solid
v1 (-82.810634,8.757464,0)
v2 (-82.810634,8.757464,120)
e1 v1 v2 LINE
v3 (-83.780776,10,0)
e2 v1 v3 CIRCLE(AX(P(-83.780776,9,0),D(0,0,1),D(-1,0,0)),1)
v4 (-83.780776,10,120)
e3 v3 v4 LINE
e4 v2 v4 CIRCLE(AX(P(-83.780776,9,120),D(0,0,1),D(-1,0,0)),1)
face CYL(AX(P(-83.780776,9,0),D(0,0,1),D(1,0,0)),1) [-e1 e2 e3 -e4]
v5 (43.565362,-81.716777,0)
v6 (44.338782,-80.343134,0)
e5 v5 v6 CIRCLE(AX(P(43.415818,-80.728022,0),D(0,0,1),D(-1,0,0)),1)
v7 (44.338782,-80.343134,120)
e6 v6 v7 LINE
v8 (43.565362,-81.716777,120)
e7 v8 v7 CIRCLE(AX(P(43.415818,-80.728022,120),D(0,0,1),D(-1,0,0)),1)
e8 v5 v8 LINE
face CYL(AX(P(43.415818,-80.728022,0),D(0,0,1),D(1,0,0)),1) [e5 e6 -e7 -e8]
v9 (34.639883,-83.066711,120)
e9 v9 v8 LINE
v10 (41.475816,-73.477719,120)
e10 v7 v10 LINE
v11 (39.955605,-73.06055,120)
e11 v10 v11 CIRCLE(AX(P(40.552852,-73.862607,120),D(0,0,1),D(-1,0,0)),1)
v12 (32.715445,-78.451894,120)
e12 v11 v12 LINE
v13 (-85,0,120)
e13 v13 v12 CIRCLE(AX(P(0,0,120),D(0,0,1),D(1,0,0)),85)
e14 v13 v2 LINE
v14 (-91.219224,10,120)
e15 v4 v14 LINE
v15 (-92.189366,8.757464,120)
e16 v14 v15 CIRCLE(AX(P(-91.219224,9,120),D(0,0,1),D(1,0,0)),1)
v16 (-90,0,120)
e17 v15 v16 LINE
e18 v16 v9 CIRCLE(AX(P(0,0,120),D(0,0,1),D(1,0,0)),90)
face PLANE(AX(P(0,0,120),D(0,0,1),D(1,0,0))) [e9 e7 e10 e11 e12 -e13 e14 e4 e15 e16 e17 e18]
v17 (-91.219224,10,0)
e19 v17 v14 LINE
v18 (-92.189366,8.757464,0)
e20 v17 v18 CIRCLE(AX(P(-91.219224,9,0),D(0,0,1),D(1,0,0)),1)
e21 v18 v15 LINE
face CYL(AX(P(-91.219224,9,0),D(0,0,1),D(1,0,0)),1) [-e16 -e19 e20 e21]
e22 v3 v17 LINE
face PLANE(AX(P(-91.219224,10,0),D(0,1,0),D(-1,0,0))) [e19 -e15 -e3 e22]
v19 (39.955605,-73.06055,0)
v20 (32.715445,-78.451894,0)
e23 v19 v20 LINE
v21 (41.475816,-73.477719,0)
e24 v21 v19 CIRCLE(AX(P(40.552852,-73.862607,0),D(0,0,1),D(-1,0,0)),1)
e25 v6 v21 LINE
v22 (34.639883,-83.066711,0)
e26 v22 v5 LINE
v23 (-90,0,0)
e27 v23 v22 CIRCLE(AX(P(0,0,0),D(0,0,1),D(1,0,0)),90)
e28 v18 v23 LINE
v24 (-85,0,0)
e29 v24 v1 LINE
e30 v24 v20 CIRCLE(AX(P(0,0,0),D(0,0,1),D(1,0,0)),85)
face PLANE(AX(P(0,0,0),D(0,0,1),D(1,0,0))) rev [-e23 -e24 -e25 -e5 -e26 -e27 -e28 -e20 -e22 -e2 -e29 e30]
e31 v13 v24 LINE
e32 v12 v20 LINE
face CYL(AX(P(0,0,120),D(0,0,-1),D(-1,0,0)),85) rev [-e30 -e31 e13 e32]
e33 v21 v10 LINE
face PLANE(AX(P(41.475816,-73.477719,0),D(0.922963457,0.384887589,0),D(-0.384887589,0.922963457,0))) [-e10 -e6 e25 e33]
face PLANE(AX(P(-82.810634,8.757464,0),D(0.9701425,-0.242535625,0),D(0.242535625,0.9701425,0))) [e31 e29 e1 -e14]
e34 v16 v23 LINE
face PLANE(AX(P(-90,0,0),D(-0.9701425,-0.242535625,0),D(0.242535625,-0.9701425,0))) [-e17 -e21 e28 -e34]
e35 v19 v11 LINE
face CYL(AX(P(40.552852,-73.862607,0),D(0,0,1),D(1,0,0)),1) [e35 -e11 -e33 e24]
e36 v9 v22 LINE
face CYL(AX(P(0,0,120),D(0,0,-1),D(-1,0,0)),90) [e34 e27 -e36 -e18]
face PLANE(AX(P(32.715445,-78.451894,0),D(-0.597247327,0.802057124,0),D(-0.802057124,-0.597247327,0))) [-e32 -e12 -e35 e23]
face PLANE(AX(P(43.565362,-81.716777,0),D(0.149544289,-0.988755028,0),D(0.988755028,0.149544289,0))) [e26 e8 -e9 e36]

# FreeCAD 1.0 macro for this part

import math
import FreeCAD as App
import Part
import Sketcher

V = App.Vector

doc = App.newDocument("Part")
params = doc.addObject("Spreadsheet::Sheet", "Params")
for row, (alias, value) in enumerate([
    ("sketch1_radius", "85 mm"),
    ("sketch1_radius2", "90 mm"),
    ("pad1_length", "120 mm"),
    ("sketch2_radius", "1 mm"),
    ("sketch2_radius2", "1 mm"),
    ("sketch2_length", "5 mm"),
    ("pad2_length", "120 mm"),
    ("sketch3_radius", "1 mm"),
    ("sketch3_width", "5 mm"),
    ("pad3_length", "120 mm"),
], start=1):
    params.set(f"A{row}", alias)
    params.set(f"B{row}", "=" + value)
    params.setAlias(f"B{row}", alias)

body = doc.addObject("PartDesign::Body", "Body")

sketch1 = body.newObject("Sketcher::SketchObject", "Sketch")
sketch1.AttachmentSupport = (doc.getObject("XY_Plane"), [""])
sketch1.MapMode = "FlatFace"
sketch1.addGeometry([
    Part.ArcOfCircle(Part.Circle(V(0, 0, 0), V(0, 0, 1), 85), math.radians(180), math.radians(293)),
    Part.LineSegment(V(-85, 0, 0), V(-90, 0, 0)),
    Part.ArcOfCircle(Part.Circle(V(0, 0, 0), V(0, 0, 1), 90), math.radians(180), math.radians(293)),
    Part.LineSegment(V(35, -83, 0), V(33, -78, 0)),
], False)
sketch1.addConstraint([
    Sketcher.Constraint("Coincident", 0, 1, 1, 1),
    Sketcher.Constraint("Coincident", 1, 2, 2, 1),
    Sketcher.Constraint("Coincident", 2, 2, 3, 1),
    Sketcher.Constraint("Coincident", 3, 2, 0, 2),
    Sketcher.Constraint("Horizontal", 1),
    Sketcher.Constraint("Coincident", 0, 3, -1, 1),
    Sketcher.Constraint("Coincident", 2, 3, -1, 1),
    Sketcher.Constraint("PointOnObject", 0, 1, -1),
    Sketcher.Constraint("Radius", 0, 85.0),
    Sketcher.Constraint("Radius", 2, 90.0),
    Sketcher.Constraint("DistanceY", 2, 2, -1, 1, 83.066711),
    Sketcher.Constraint("DistanceX", -1, 1, 3, 2, 32.715445),
])
sketch1.setExpression("Constraints[8]", "Params.sketch1_radius")
sketch1.setExpression("Constraints[9]", "Params.sketch1_radius2")
pad1 = body.newObject("PartDesign::Pad", "Pad")
pad1.Profile = sketch1
pad1.setExpression("Length", "Params.pad1_length")

sketch2 = body.newObject("Sketcher::SketchObject", "Sketch001")
sketch2.AttachmentSupport = (doc.getObject("XY_Plane"), [""])
sketch2.MapMode = "FlatFace"
sketch2.AttachmentOffset = App.Placement(V(0, 0, 120), App.Rotation())
sketch2.addGeometry([
    Part.LineSegment(V(39.955605, -73.06055, 0), V(32.715445, -78.451894, 0)),
    Part.LineSegment(V(32.715445, -78.451894, 0), V(34.639883, -83.066711, 0)),
    Part.LineSegment(V(34.639883, -83.066711, 0), V(43.565362, -81.716777, 0)),
    Part.ArcOfCircle(Part.Circle(V(43.415818, -80.728022, 0), V(0, 0, 1), 1), math.radians(-81.399482), math.radians(22.636762)),
    Part.LineSegment(V(44.338782, -80.343134, 0), V(41.475816, -73.477719, 0)),
    Part.ArcOfCircle(Part.Circle(V(40.552852, -73.862607, 0), V(0, 0, 1), 1), math.radians(22.636762), math.radians(126.673005)),
], False)
sketch2.addConstraint([
    Sketcher.Constraint("Coincident", 0, 2, 1, 1),
    Sketcher.Constraint("Coincident", 1, 2, 2, 1),
    Sketcher.Constraint("Coincident", 2, 2, 3, 1),
    Sketcher.Constraint("Coincident", 3, 2, 4, 1),
    Sketcher.Constraint("Coincident", 4, 2, 5, 1),
    Sketcher.Constraint("Coincident", 5, 2, 0, 1),
    Sketcher.Constraint("Radius", 3, 1.0),
    Sketcher.Constraint("Radius", 5, 1.0),
    Sketcher.Constraint("Distance", 1, 5.0),
    Sketcher.Constraint("DistanceX", 1, 2, 3, 2, 9.698899),
    Sketcher.Constraint("DistanceX", -1, 1, 3, 3, 43.415818),
    Sketcher.Constraint("DistanceY", 3, 3, -1, 1, 80.728022),
    Sketcher.Constraint("DistanceY", 1, 2, -1, 1, 83.066711),
    Sketcher.Constraint("DistanceX", -1, 1, 3, 2, 44.338782),
    Sketcher.Constraint("DistanceY", 4, 2, -1, 1, 73.477719),
    Sketcher.Constraint("DistanceY", 5, 2, -1, 1, 73.06055),
    Sketcher.Constraint("DistanceX", 1, 2, 5, 3, 5.912969),
    Sketcher.Constraint("DistanceX", 5, 3, 2, 2, 3.01251),
    Sketcher.Constraint("DistanceY", 2, 2, 5, 3, 7.85417),
    Sketcher.Constraint("DistanceY", 3, 2, 0, 2, 1.89124),
])
sketch2.setExpression("Constraints[6]", "Params.sketch2_radius")
sketch2.setExpression("Constraints[7]", "Params.sketch2_radius2")
sketch2.setExpression("Constraints[8]", "Params.sketch2_length")
pad2 = body.newObject("PartDesign::Pad", "Pad001")
pad2.Profile = sketch2
pad2.setExpression("Length", "Params.pad2_length")
pad2.Reversed = True

sketch3 = body.newObject("Sketcher::SketchObject", "Sketch002")
sketch3.AttachmentSupport = (doc.getObject("XY_Plane"), [""])
sketch3.MapMode = "FlatFace"
sketch3.AttachmentOffset = App.Placement(V(0, 0, 120), App.Rotation())
sketch3.addGeometry([
    Part.LineSegment(V(-92.2, 8.8, 0), V(-90, 0, 0)),
    Part.LineSegment(V(-90, 0, 0), V(-85, 0, 0)),
    Part.LineSegment(V(-85, 0, 0), V(-82.8, 8.8, 0)),
    Part.ArcOfCircle(Part.Circle(V(-83.8, 9, 0), V(0, 0, 1), 1), math.radians(-14), math.radians(90)),
    Part.LineSegment(V(-83.8, 10, 0), V(-91.2, 10, 0)),
    Part.ArcOfCircle(Part.Circle(V(-91.2, 9, 0), V(0, 0, 1), 1), math.radians(90), math.radians(194)),
], False)
sketch3.addConstraint([
    Sketcher.Constraint("Coincident", 0, 2, 1, 1),
    Sketcher.Constraint("Coincident", 1, 2, 2, 1),
    Sketcher.Constraint("Tangent", 2, 2, 3, 1),
    Sketcher.Constraint("Tangent", 3, 2, 4, 1),
    Sketcher.Constraint("Tangent", 4, 2, 5, 1),
    Sketcher.Constraint("Tangent", 5, 2, 0, 1),
    Sketcher.Constraint("Horizontal", 1),
    Sketcher.Constraint("Horizontal", 4),
    Sketcher.Constraint("Equal", 3, 5),
    Sketcher.Constraint("PointOnObject", 0, 2, -1),
    Sketcher.Constraint("Horizontal", 2, 2, 5, 2),
    Sketcher.Constraint("Radius", 3, 1.0),
    Sketcher.Constraint("DistanceX", 1, 1, 1, 2, 5.0),
    Sketcher.Constraint("DistanceY", -1, 1, 3, 3, 9.0),
    Sketcher.Constraint("DistanceX", 0, 2, -1, 1, 90.0),
    Sketcher.Constraint("DistanceX", 4, 2, 4, 1, 7.438447),
])
sketch3.setExpression("Constraints[11]", "Params.sketch3_radius")
sketch3.setExpression("Constraints[12]", "Params.sketch3_width")
pad3 = body.newObject("PartDesign::Pad", "Pad002")
pad3.Profile = sketch3
pad3.setExpression("Length", "Params.pad3_length")
pad3.Reversed = True

doc.recompute()
